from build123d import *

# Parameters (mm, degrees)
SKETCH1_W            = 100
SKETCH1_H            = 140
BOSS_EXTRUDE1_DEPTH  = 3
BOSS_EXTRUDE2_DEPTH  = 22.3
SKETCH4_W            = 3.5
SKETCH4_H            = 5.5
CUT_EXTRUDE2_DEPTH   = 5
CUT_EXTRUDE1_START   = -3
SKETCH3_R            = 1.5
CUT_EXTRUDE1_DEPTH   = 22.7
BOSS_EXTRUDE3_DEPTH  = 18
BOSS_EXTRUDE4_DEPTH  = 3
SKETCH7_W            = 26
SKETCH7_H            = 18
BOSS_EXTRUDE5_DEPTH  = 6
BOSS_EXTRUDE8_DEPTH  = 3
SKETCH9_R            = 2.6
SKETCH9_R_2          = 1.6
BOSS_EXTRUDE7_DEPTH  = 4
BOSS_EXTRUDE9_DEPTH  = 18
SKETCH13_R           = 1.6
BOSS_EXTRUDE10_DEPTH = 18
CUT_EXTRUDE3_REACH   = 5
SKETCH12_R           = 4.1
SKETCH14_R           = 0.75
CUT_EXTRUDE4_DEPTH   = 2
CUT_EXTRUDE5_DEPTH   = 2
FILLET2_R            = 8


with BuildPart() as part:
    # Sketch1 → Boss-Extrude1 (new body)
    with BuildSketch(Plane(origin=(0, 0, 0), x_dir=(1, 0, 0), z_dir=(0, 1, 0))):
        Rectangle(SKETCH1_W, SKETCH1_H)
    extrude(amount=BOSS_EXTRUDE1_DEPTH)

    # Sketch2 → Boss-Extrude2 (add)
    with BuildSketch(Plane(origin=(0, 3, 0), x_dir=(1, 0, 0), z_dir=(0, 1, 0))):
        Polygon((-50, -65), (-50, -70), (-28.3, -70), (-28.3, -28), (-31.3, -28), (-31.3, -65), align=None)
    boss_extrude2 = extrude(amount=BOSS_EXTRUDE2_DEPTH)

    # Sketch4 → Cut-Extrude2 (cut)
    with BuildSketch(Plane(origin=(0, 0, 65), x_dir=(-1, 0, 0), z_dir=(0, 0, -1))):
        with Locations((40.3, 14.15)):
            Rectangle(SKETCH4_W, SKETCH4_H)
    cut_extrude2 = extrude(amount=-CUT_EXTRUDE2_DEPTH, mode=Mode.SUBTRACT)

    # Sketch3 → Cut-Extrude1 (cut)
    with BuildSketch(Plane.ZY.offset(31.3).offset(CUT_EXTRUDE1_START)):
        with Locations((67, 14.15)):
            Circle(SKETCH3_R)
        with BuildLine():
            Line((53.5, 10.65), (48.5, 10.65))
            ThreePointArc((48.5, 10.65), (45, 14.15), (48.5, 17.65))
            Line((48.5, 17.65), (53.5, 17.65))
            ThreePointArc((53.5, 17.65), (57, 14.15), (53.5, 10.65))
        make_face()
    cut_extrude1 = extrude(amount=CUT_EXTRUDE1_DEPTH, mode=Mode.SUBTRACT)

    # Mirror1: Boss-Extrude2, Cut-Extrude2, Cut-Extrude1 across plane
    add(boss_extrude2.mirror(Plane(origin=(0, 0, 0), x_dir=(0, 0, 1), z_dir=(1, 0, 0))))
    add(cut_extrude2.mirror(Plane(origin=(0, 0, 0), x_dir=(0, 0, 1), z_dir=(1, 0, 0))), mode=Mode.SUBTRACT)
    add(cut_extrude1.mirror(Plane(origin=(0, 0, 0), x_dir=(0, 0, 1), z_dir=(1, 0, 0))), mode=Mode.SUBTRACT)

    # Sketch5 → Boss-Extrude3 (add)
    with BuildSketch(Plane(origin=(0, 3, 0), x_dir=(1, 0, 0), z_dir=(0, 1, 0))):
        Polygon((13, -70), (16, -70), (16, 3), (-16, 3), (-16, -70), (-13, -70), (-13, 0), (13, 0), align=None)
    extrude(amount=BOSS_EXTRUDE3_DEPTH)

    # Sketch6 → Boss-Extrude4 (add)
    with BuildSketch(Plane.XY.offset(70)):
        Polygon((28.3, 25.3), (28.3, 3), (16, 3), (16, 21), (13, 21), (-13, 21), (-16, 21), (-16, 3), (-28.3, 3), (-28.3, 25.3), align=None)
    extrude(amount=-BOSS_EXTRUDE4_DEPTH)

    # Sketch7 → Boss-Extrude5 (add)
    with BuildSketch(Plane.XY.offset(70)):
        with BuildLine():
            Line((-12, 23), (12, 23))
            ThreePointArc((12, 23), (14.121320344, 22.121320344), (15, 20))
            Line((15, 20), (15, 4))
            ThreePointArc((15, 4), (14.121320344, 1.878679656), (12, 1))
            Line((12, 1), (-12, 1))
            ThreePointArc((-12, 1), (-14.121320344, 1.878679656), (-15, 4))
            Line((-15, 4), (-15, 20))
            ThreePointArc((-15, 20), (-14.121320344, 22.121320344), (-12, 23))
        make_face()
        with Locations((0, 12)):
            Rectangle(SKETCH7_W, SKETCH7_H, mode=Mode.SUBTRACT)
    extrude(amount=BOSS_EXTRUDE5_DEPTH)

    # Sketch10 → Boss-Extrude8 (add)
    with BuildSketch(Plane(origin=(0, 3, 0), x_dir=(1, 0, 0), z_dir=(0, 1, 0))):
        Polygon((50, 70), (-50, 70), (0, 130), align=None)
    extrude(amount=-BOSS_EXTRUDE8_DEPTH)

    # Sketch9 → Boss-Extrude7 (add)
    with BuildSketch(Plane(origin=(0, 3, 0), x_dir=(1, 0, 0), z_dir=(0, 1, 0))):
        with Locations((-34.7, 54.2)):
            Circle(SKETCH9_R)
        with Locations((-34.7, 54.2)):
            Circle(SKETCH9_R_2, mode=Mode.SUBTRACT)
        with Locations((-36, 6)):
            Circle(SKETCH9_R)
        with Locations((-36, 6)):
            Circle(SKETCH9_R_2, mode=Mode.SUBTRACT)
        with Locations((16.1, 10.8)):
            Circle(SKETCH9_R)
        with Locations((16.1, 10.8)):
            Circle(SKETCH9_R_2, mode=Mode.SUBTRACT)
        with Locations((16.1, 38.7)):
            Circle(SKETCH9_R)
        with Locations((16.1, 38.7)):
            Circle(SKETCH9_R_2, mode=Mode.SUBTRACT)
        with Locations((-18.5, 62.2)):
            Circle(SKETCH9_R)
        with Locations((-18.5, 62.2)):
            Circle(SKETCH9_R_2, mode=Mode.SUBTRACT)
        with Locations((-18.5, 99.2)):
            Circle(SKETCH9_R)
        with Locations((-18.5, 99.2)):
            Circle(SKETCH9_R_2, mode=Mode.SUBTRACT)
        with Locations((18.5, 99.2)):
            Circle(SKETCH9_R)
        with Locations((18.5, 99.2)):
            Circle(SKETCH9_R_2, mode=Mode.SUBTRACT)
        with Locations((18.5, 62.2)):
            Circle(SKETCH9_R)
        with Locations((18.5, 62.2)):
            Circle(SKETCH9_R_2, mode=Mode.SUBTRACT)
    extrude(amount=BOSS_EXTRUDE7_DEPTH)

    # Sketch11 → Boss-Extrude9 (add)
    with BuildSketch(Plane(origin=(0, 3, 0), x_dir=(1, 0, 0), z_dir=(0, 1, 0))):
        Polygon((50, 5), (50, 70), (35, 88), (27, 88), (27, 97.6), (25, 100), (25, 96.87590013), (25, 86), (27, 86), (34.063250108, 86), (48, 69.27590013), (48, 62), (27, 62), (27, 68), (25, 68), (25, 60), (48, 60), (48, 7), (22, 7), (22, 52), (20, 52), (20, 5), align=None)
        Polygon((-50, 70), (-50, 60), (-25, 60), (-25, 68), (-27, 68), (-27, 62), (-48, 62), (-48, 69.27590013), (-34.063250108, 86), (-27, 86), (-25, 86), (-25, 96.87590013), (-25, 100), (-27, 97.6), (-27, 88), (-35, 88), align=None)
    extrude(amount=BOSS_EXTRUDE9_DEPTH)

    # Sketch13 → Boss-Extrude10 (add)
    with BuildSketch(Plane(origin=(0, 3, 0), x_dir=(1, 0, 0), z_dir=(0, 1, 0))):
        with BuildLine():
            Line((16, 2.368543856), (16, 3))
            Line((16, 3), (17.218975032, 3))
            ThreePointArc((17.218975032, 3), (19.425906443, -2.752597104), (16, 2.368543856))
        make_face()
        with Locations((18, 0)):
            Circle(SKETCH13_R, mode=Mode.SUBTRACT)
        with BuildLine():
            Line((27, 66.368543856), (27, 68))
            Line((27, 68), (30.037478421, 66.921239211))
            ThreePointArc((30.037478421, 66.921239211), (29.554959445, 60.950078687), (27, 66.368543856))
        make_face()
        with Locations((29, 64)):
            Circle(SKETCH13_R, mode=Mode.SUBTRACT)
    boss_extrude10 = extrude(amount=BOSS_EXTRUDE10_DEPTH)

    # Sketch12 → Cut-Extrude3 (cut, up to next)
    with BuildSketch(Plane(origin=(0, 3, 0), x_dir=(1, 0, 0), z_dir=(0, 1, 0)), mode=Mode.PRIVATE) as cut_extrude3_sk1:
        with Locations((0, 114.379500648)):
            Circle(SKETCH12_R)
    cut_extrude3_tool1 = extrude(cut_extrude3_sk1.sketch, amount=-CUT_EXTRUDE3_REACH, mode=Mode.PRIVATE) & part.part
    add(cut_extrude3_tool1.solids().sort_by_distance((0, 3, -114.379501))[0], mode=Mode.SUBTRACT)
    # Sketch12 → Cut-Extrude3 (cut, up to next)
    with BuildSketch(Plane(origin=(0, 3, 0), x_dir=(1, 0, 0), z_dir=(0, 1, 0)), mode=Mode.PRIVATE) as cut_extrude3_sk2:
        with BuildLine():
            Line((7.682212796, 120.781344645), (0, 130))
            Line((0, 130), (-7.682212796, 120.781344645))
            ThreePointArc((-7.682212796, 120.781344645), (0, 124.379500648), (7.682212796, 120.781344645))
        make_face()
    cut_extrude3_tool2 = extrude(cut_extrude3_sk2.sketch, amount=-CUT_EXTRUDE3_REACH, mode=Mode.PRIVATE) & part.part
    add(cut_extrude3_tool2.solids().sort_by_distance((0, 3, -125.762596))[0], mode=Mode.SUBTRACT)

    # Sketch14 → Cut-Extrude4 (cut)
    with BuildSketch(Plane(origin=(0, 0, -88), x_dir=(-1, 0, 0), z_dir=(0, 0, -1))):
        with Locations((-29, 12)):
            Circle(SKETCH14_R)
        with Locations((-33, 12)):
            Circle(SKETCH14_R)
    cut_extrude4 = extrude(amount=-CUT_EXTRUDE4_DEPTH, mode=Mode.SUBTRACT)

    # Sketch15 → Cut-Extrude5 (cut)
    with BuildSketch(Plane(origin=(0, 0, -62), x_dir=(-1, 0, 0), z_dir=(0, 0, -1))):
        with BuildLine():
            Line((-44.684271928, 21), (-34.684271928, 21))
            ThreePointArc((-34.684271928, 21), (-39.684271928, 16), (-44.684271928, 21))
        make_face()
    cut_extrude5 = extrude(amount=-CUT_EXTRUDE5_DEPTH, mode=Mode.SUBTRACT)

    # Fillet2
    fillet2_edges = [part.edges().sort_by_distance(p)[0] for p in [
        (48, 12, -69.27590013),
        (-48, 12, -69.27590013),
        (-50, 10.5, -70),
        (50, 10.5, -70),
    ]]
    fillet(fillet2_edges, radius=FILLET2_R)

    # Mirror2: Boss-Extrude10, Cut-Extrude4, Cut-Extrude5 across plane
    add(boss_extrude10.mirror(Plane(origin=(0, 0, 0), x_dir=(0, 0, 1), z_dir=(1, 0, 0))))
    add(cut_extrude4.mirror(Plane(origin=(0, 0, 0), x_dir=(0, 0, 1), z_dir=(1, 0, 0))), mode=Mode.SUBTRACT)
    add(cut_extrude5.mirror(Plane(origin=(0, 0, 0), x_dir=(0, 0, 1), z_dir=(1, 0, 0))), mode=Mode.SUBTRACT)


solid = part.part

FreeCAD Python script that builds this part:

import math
import FreeCAD as App
import Part
import Sketcher
from FreeCAD import Vector


def edges_at(feature, points):
    """Names of the edges that pass closest to the given points."""
    edges = feature.Shape.Edges
    near = lambda p: min(range(len(edges)), key=lambda i: edges[i].distToShape(Part.Vertex(*p))[0])
    return sorted({f"Edge{near(p) + 1}" for p in points})


def add_polygon(sketch, points):
    """Adds a closed chain of lines whose ends are joined by coincident constraints."""
    first, n = sketch.GeometryCount, len(points)
    for a, b in zip(points, points[1:] + points[:1]):
        sketch.addGeometry(Part.LineSegment(App.Vector(*a, 0), App.Vector(*b, 0)), False)
    for i in range(n):
        sketch.addConstraint(Sketcher.Constraint("Coincident", first + i, 2, first + (i + 1) % n, 1))

doc = App.newDocument("Part")
body = doc.addObject("PartDesign::Body", "Body")

# Sketch on XZ plane
sketch1 = doc.addObject("Sketcher::SketchObject", "Sketch")
body.addObject(sketch1)
sketch1.AttachmentSupport = (doc.XZ_Plane, [""])
sketch1.MapMode = "FlatFace"
add_polygon(sketch1, [(-50, -70), (-50, 70), (50, 70), (50, -70)])  # lines 0-3
sketch1.addConstraint(Sketcher.Constraint("Vertical", 0))
sketch1.addConstraint(Sketcher.Constraint("Horizontal", 1))
sketch1.addConstraint(Sketcher.Constraint("Vertical", 2))
sketch1.addConstraint(Sketcher.Constraint("Horizontal", 3))
sketch1.addConstraint(Sketcher.Constraint("Symmetric", 0, 2, 2, 2, -1, 1))
sketch1.addConstraint(Sketcher.Constraint("DistanceX", 1, 1, 1, 2, 100.0))
sketch1.addConstraint(Sketcher.Constraint("DistanceY", 0, 1, 0, 2, 140.0))
pad1 = doc.addObject("PartDesign::Pad", "Pad")
body.addObject(pad1)
pad1.Profile = sketch1
pad1.Length = 3
pad1.Reversed = True

# Sketch on XZ plane
sketch2 = doc.addObject("Sketcher::SketchObject", "Sketch001")
body.addObject(sketch2)
sketch2.AttachmentSupport = (doc.XZ_Plane, [""])
sketch2.MapMode = "FlatFace"
sketch2.AttachmentOffset = App.Placement(Vector(0, 0, -3), App.Rotation())
add_polygon(sketch2, [(-50, 65), (-50, 70), (-28.3, 70), (-28.3, 28), (-31.3, 28), (-31.3, 65)])  # lines 0-5
sketch2.addConstraint(Sketcher.Constraint("Vertical", 0))
sketch2.addConstraint(Sketcher.Constraint("Horizontal", 1))
sketch2.addConstraint(Sketcher.Constraint("Vertical", 2))
sketch2.addConstraint(Sketcher.Constraint("Horizontal", 3))
sketch2.addConstraint(Sketcher.Constraint("Vertical", 4))
sketch2.addConstraint(Sketcher.Constraint("Horizontal", 5))
sketch2.addConstraint(Sketcher.Constraint("DistanceX", 3, 2, 3, 1, 3.0))
sketch2.addConstraint(Sketcher.Constraint("DistanceY", 0, 1, 0, 2, 5.0))
sketch2.addConstraint(Sketcher.Constraint("DistanceY", 2, 2, 2, 1, 42.0))
sketch2.addConstraint(Sketcher.Constraint("DistanceX", 1, 1, 1, 2, 21.7))
sketch2.addConstraint(Sketcher.Constraint("DistanceX", 0, 2, -1, 1, 50.0))
sketch2.addConstraint(Sketcher.Constraint("DistanceY", -1, 1, 0, 2, 70.0))
pad2 = doc.addObject("PartDesign::Pad", "Pad001")
body.addObject(pad2)
pad2.Profile = sketch2
pad2.Length = 22.3
pad2.Reversed = True

# Sketch on XY plane
sketch3 = doc.addObject("Sketcher::SketchObject", "Sketch002")
body.addObject(sketch3)
sketch3.AttachmentSupport = (doc.XY_Plane, [""])
sketch3.MapMode = "FlatFace"
sketch3.AttachmentOffset = App.Placement(Vector(0, 0, 65), App.Rotation())
add_polygon(sketch3, [(-38.5, 16.9), (-38.5, 11.4), (-42, 11.4), (-42, 16.9)])  # lines 0-3
sketch3.addConstraint(Sketcher.Constraint("Vertical", 0))
sketch3.addConstraint(Sketcher.Constraint("Horizontal", 1))
sketch3.addConstraint(Sketcher.Constraint("Vertical", 2))
sketch3.addConstraint(Sketcher.Constraint("Horizontal", 3))
sketch3.addConstraint(Sketcher.Constraint("DistanceX", 1, 2, 1, 1, 3.5))
sketch3.addConstraint(Sketcher.Constraint("DistanceY", 0, 2, 0, 1, 5.5))
sketch3.addConstraint(Sketcher.Constraint("DistanceY", -1, 1, 0, 2, 11.4))
sketch3.addConstraint(Sketcher.Constraint("DistanceX", 0, 2, -1, 1, 38.55))
pocket1 = doc.addObject("PartDesign::Pocket", "Pocket")
body.addObject(pocket1)
pocket1.Profile = sketch3
pocket1.Length = 5
pocket1.Reversed = True

# Sketch on YZ plane
sketch4 = doc.addObject("Sketcher::SketchObject", "Sketch003")
body.addObject(sketch4)
sketch4.AttachmentSupport = (doc.YZ_Plane, [""])
sketch4.MapMode = "FlatFace"
sketch4.AttachmentOffset = App.Placement(Vector(0, 0, -28.3), App.Rotation())
sketch4.addGeometry(Part.Circle(Vector(14.2, 67, 0), Vector(0, 0, 1), 1.5), False)
sketch4.addGeometry(Part.LineSegment(Vector(10.7, 48.5, 0), Vector(10.7, 53.5, 0)), False)
sketch4.addGeometry(Part.ArcOfCircle(Part.Circle(Vector(14.2, 53.5, 0), Vector(0, 0, 1), 3.5), math.radians(0), math.radians(180)), False)
sketch4.addGeometry(Part.LineSegment(Vector(17.6, 53.5, 0), Vector(17.6, 48.5, 0)), False)
sketch4.addGeometry(Part.ArcOfCircle(Part.Circle(Vector(14.2, 48.5, 0), Vector(0, 0, 1), 3.5), math.radians(180), math.radians(360)), False)
sketch4.addConstraint(Sketcher.Constraint("Tangent", 1, 2, 2, 2))
sketch4.addConstraint(Sketcher.Constraint("Tangent", 2, 1, 3, 1))
sketch4.addConstraint(Sketcher.Constraint("Tangent", 3, 2, 4, 2))
sketch4.addConstraint(Sketcher.Constraint("Tangent", 4, 1, 1, 1))
sketch4.addConstraint(Sketcher.Constraint("Vertical", 1))
sketch4.addConstraint(Sketcher.Constraint("Vertical", 3))
sketch4.addConstraint(Sketcher.Constraint("Vertical", 0, 3, 2, 3))
sketch4.addConstraint(Sketcher.Constraint("Diameter", 0, 3.0))
sketch4.addConstraint(Sketcher.Constraint("Radius", 2, 3.5))
sketch4.addConstraint(Sketcher.Constraint("DistanceY", 1, 1, 1, 2, 5.0))
sketch4.addConstraint(Sketcher.Constraint("DistanceY", -1, 1, 0, 3, 67.0))
sketch4.addConstraint(Sketcher.Constraint("DistanceY", -1, 1, 2, 3, 53.5))
sketch4.addConstraint(Sketcher.Constraint("DistanceX", -1, 1, 0, 3, 14.15))
pocket2 = doc.addObject("PartDesign::Pocket", "Pocket001")
body.addObject(pocket2)
pocket2.Profile = sketch4
pocket2.Length = 22.7
doc.recompute()

mirrored = doc.addObject("PartDesign::Mirrored", "Mirrored")
body.addObject(mirrored)
mirrored.Originals = [pad2, pocket1, pocket2]
mirrored.MirrorPlane = (doc.YZ_Plane, [""])
body.Tip = mirrored

# Sketch on XZ plane
sketch5 = doc.addObject("Sketcher::SketchObject", "Sketch004")
body.addObject(sketch5)
sketch5.AttachmentSupport = (doc.XZ_Plane, [""])
sketch5.MapMode = "FlatFace"
sketch5.AttachmentOffset = App.Placement(Vector(0, 0, -3), App.Rotation())
add_polygon(sketch5, [(13, 70), (16, 70), (16, -3), (-16, -3), (-16, 70), (-13, 70), (-13, 0), (13, 0)])  # lines 0-7
sketch5.addConstraint(Sketcher.Constraint("Horizontal", 0))
sketch5.addConstraint(Sketcher.Constraint("Vertical", 1))
sketch5.addConstraint(Sketcher.Constraint("Horizontal", 2))
sketch5.addConstraint(Sketcher.Constraint("Vertical", 3))
sketch5.addConstraint(Sketcher.Constraint("Horizontal", 4))
sketch5.addConstraint(Sketcher.Constraint("Vertical", 5))
sketch5.addConstraint(Sketcher.Constraint("Horizontal", 6))
sketch5.addConstraint(Sketcher.Constraint("Vertical", 7))
sketch5.addConstraint(Sketcher.Constraint("Symmetric", 5, 2, 6, 2, -1, 1))
sketch5.addConstraint(Sketcher.Constraint("Symmetric", 0, 2, 3, 2, -2))
sketch5.addConstraint(Sketcher.Constraint("DistanceX", 0, 1, 0, 2, 3.0))
sketch5.addConstraint(Sketcher.Constraint("DistanceX", 2, 2, 2, 1, 32.0))
sketch5.addConstraint(Sketcher.Constraint("DistanceY", 1, 2, 1, 1, 73.0))
sketch5.addConstraint(Sketcher.Constraint("DistanceY", 5, 2, 5, 1, 70.0))
pad3 = doc.addObject("PartDesign::Pad", "Pad002")
body.addObject(pad3)
pad3.Profile = sketch5
pad3.Length = 18
pad3.Reversed = True

# Sketch on XY plane
sketch6 = doc.addObject("Sketcher::SketchObject", "Sketch005")
body.addObject(sketch6)
sketch6.AttachmentSupport = (doc.XY_Plane, [""])
sketch6.MapMode = "FlatFace"
sketch6.AttachmentOffset = App.Placement(Vector(0, 0, 70), App.Rotation())
add_polygon(sketch6, [(28, 3), (28, 25), (-28, 25), (-28, 3), (-16, 3), (-16, 21), (16, 21), (16, 3)])  # lines 0-7
sketch6.addConstraint(Sketcher.Constraint("Vertical", 0))
sketch6.addConstraint(Sketcher.Constraint("Horizontal", 1))
sketch6.addConstraint(Sketcher.Constraint("Vertical", 2))
sketch6.addConstraint(Sketcher.Constraint("Horizontal", 3))
sketch6.addConstraint(Sketcher.Constraint("Vertical", 4))
sketch6.addConstraint(Sketcher.Constraint("Horizontal", 5))
sketch6.addConstraint(Sketcher.Constraint("Vertical", 6))
sketch6.addConstraint(Sketcher.Constraint("Horizontal", 7))
sketch6.addConstraint(Sketcher.Constraint("Symmetric", 3, 2, 6, 2, -2))
sketch6.addConstraint(Sketcher.Constraint("Equal", 3, 7))
sketch6.addConstraint(Sketcher.Constraint("DistanceX", 5, 1, 5, 2, 32.0))
sketch6.addConstraint(Sketcher.Constraint("DistanceY", 4, 1, 4, 2, 18.0))
sketch6.addConstraint(Sketcher.Constraint("DistanceX", 1, 2, 1, 1, 56.6))
sketch6.addConstraint(Sketcher.Constraint("DistanceY", 0, 1, 0, 2, 22.3))
sketch6.addConstraint(Sketcher.Constraint("DistanceY", -1, 1, 2, 2, 3.0))
pad4 = doc.addObject("PartDesign::Pad", "Pad003")
body.addObject(pad4)
pad4.Profile = sketch6
pad4.Length = 3
pad4.Reversed = True

# Sketch on XY plane
sketch7 = doc.addObject("Sketcher::SketchObject", "Sketch006")
body.addObject(sketch7)
sketch7.AttachmentSupport = (doc.XY_Plane, [""])
sketch7.MapMode = "FlatFace"
sketch7.AttachmentOffset = App.Placement(Vector(0, 0, 70), App.Rotation())
sketch7.addGeometry(Part.LineSegment(Vector(12, 23, 0), Vector(-12, 23, 0)), False)  # 0
sketch7.addGeometry(Part.ArcOfCircle(Part.Circle(Vector(-12, 20, 0), Vector(0, 0, 1), 3), math.radians(90), math.radians(180)), False)  # 1
sketch7.addGeometry(Part.LineSegment(Vector(-15, 20, 0), Vector(-15, 4, 0)), False)  # 2
sketch7.addGeometry(Part.ArcOfCircle(Part.Circle(Vector(-12, 4, 0), Vector(0, 0, 1), 3), math.radians(180), math.radians(270)), False)  # 3
sketch7.addGeometry(Part.LineSegment(Vector(-12, 1, 0), Vector(12, 1, 0)), False)  # 4
sketch7.addGeometry(Part.ArcOfCircle(Part.Circle(Vector(12, 4, 0), Vector(0, 0, 1), 3), math.radians(-90), math.radians(0)), False)  # 5
sketch7.addGeometry(Part.LineSegment(Vector(15, 4, 0), Vector(15, 20, 0)), False)  # 6
sketch7.addGeometry(Part.ArcOfCircle(Part.Circle(Vector(12, 20, 0), Vector(0, 0, 1), 3), math.radians(0), math.radians(90)), False)  # 7
add_polygon(sketch7, [(-13, 3), (-13, 21), (13, 21), (13, 3)])  # lines 8-11
sketch7.addConstraint(Sketcher.Constraint("Tangent", 0, 2, 1, 1))
sketch7.addConstraint(Sketcher.Constraint("Tangent", 1, 2, 2, 1))
sketch7.addConstraint(Sketcher.Constraint("Tangent", 2, 2, 3, 1))
sketch7.addConstraint(Sketcher.Constraint("Tangent", 3, 2, 4, 1))
sketch7.addConstraint(Sketcher.Constraint("Tangent", 4, 2, 5, 1))
sketch7.addConstraint(Sketcher.Constraint("Tangent", 5, 2, 6, 1))
sketch7.addConstraint(Sketcher.Constraint("Tangent", 6, 2, 7, 1))
sketch7.addConstraint(Sketcher.Constraint("Tangent", 7, 2, 0, 1))
sketch7.addConstraint(Sketcher.Constraint("Horizontal", 0))
sketch7.addConstraint(Sketcher.Constraint("Vertical", 2))
sketch7.addConstraint(Sketcher.Constraint("Horizontal", 4))
sketch7.addConstraint(Sketcher.Constraint("Vertical", 6))
sketch7.addConstraint(Sketcher.Constraint("Vertical", 8))
sketch7.addConstraint(Sketcher.Constraint("Horizontal", 9))
sketch7.addConstraint(Sketcher.Constraint("Vertical", 10))
sketch7.addConstraint(Sketcher.Constraint("Horizontal", 11))
sketch7.addConstraint(Sketcher.Constraint("Equal", 1, 3))
sketch7.addConstraint(Sketcher.Constraint("Equal", 3, 5))
sketch7.addConstraint(Sketcher.Constraint("Equal", 5, 7))
sketch7.addConstraint(Sketcher.Constraint("Radius", 1, 3.0))
sketch7.addConstraint(Sketcher.Constraint("DistanceX", 0, 2, 0, 1, 24.0))
sketch7.addConstraint(Sketcher.Constraint("DistanceX", 9, 1, 9, 2, 26.0))
sketch7.addConstraint(Sketcher.Constraint("DistanceY", 2, 2, 2, 1, 16.0))
sketch7.addConstraint(Sketcher.Constraint("DistanceY", 8, 1, 8, 2, 18.0))
sketch7.addConstraint(Sketcher.Constraint("DistanceX", 1, 3, -1, 1, 12.0))
sketch7.addConstraint(Sketcher.Constraint("DistanceY", -1, 1, 1, 3, 20.0))
sketch7.addConstraint(Sketcher.Constraint("DistanceX", 8, 2, -1, 1, 13.0))
sketch7.addConstraint(Sketcher.Constraint("DistanceY", -1, 1, 8, 2, 21.0))
pad5 = doc.addObject("PartDesign::Pad", "Pad004")
body.addObject(pad5)
pad5.Profile = sketch7
pad5.Length = 6

# Sketch on XZ plane
sketch8 = doc.addObject("Sketcher::SketchObject", "Sketch007")
body.addObject(sketch8)
sketch8.AttachmentSupport = (doc.XZ_Plane, [""])
sketch8.MapMode = "FlatFace"
sketch8.AttachmentOffset = App.Placement(Vector(0, 0, -3), App.Rotation())
add_polygon(sketch8, [(-50, -70), (50, -70), (0, -130)])  # lines 0-2
sketch8.addConstraint(Sketcher.Constraint("Horizontal", 0))
sketch8.addConstraint(Sketcher.Constraint("PointOnObject", 1, 2, -2))
sketch8.addConstraint(Sketcher.Constraint("Equal", 1, 2))
sketch8.addConstraint(Sketcher.Constraint("DistanceX", 0, 1, 0, 2, 100.0))
sketch8.addConstraint(Sketcher.Constraint("DistanceY", 0, 2, -1, 1, 70.0))
sketch8.addConstraint(Sketcher.Constraint("DistanceY", 1, 2, -1, 1, 130.0))
pad6 = doc.addObject("PartDesign::Pad", "Pad005")
body.addObject(pad6)
pad6.Profile = sketch8
pad6.Length = 3

# Sketch on XZ plane
sketch9 = doc.addObject("Sketcher::SketchObject", "Sketch008")
body.addObject(sketch9)
sketch9.AttachmentSupport = (doc.XZ_Plane, [""])
sketch9.MapMode = "FlatFace"
sketch9.AttachmentOffset = App.Placement(Vector(0, 0, -3), App.Rotation())
sketch9.addGeometry(Part.Circle(Vector(-34.7, -54.2, 0), Vector(0, 0, 1), 2.6), False)
sketch9.addGeometry(Part.Circle(Vector(-34.7, -54.2, 0), Vector(0, 0, 1), 1.6), False)
sketch9.addGeometry(Part.Circle(Vector(-36, -6, 0), Vector(0, 0, 1), 2.6), False)
sketch9.addGeometry(Part.Circle(Vector(-36, -6, 0), Vector(0, 0, 1), 1.6), False)
sketch9.addGeometry(Part.Circle(Vector(16.1, -10.8, 0), Vector(0, 0, 1), 2.6), False)
sketch9.addGeometry(Part.Circle(Vector(16.1, -10.8, 0), Vector(0, 0, 1), 1.6), False)
sketch9.addGeometry(Part.Circle(Vector(16.1, -38.7, 0), Vector(0, 0, 1), 2.6), False)
sketch9.addGeometry(Part.Circle(Vector(16.1, -38.7, 0), Vector(0, 0, 1), 1.6), False)
sketch9.addGeometry(Part.Circle(Vector(-18.5, -62.2, 0), Vector(0, 0, 1), 2.6), False)
sketch9.addGeometry(Part.Circle(Vector(-18.5, -62.2, 0), Vector(0, 0, 1), 1.6), False)
sketch9.addGeometry(Part.Circle(Vector(-18.5, -99.2, 0), Vector(0, 0, 1), 2.6), False)
sketch9.addGeometry(Part.Circle(Vector(-18.5, -99.2, 0), Vector(0, 0, 1), 1.6), False)
sketch9.addGeometry(Part.Circle(Vector(18.5, -99.2, 0), Vector(0, 0, 1), 2.6), False)
sketch9.addGeometry(Part.Circle(Vector(18.5, -99.2, 0), Vector(0, 0, 1), 1.6), False)
sketch9.addGeometry(Part.Circle(Vector(18.5, -62.2, 0), Vector(0, 0, 1), 2.6), False)
sketch9.addGeometry(Part.Circle(Vector(18.5, -62.2, 0), Vector(0, 0, 1), 1.6), False)
sketch9.addConstraint(Sketcher.Constraint("Coincident", 1, 3, 0, 3))
sketch9.addConstraint(Sketcher.Constraint("Coincident", 3, 3, 2, 3))
sketch9.addConstraint(Sketcher.Constraint("Coincident", 5, 3, 4, 3))
sketch9.addConstraint(Sketcher.Constraint("Coincident", 7, 3, 6, 3))
sketch9.addConstraint(Sketcher.Constraint("Coincident", 9, 3, 8, 3))
sketch9.addConstraint(Sketcher.Constraint("Coincident", 11, 3, 10, 3))
sketch9.addConstraint(Sketcher.Constraint("Coincident", 13, 3, 12, 3))
sketch9.addConstraint(Sketcher.Constraint("Coincident", 15, 3, 14, 3))
sketch9.addConstraint(Sketcher.Constraint("Equal", 0, 2))
sketch9.addConstraint(Sketcher.Constraint("Equal", 1, 3))
sketch9.addConstraint(Sketcher.Constraint("Equal", 2, 4))
sketch9.addConstraint(Sketcher.Constraint("Equal", 3, 5))
sketch9.addConstraint(Sketcher.Constraint("Equal", 4, 6))
sketch9.addConstraint(Sketcher.Constraint("Equal", 5, 7))
sketch9.addConstraint(Sketcher.Constraint("Equal", 6, 8))
sketch9.addConstraint(Sketcher.Constraint("Equal", 7, 9))
sketch9.addConstraint(Sketcher.Constraint("Equal", 8, 10))
sketch9.addConstraint(Sketcher.Constraint("Equal", 9, 11))
sketch9.addConstraint(Sketcher.Constraint("Equal", 10, 12))
sketch9.addConstraint(Sketcher.Constraint("Equal", 11, 13))
sketch9.addConstraint(Sketcher.Constraint("Equal", 12, 14))
sketch9.addConstraint(Sketcher.Constraint("Equal", 13, 15))
sketch9.addConstraint(Sketcher.Constraint("Symmetric", 10, 3, 12, 3, -2))
sketch9.addConstraint(Sketcher.Constraint("Symmetric", 8, 3, 14, 3, -2))
sketch9.addConstraint(Sketcher.Constraint("Vertical", 5, 3, 6, 3))
sketch9.addConstraint(Sketcher.Constraint("Vertical", 9, 3, 10, 3))
sketch9.addConstraint(Sketcher.Constraint("Diameter", 0, 5.2))
sketch9.addConstraint(Sketcher.Constraint("Diameter", 1, 3.2))
sketch9.addConstraint(Sketcher.Constraint("DistanceX", 2, 3, -1, 1, 36.0))
sketch9.addConstraint(Sketcher.Constraint("DistanceY", 2, 3, -1, 1, 6.0))
sketch9.addConstraint(Sketcher.Constraint("DistanceY", 8, 3, 0, 3, 8.0))
sketch9.addConstraint(Sketcher.Constraint("DistanceY", 10, 3, 8, 3, 37.0))
sketch9.addConstraint(Sketcher.Constraint("DistanceX", 10, 3, 12, 3, 37.0))
sketch9.addConstraint(Sketcher.Constraint("DistanceX", 0, 3, -1, 1, 34.7))
sketch9.addConstraint(Sketcher.Constraint("DistanceY", 0, 3, -1, 1, 54.2))
sketch9.addConstraint(Sketcher.Constraint("DistanceX", -1, 1, 4, 3, 16.1))
sketch9.addConstraint(Sketcher.Constraint("DistanceY", 4, 3, -1, 1, 10.8))
sketch9.addConstraint(Sketcher.Constraint("DistanceY", 6, 3, -1, 1, 38.7))
pad7 = doc.addObject("PartDesign::Pad", "Pad006")
body.addObject(pad7)
pad7.Profile = sketch9
pad7.Length = 4
pad7.Reversed = True

# Sketch on XZ plane
sketch10 = doc.addObject("Sketcher::SketchObject", "Sketch009")
body.addObject(sketch10)
sketch10.AttachmentSupport = (doc.XZ_Plane, [""])
sketch10.MapMode = "FlatFace"
sketch10.AttachmentOffset = App.Placement(Vector(0, 0, -3), App.Rotation())
add_polygon(sketch10, [(50, -5), (50, -70), (35, -88), (27, -88), (27, -97.6), (25, -100), (25, -86), (34.1, -86), (48, -69.3), (48, -62), (27, -62), (27, -68), (25, -68), (25, -60), (48, -60), (48, -7), (22, -7), (22, -52), (20, -52), (20, -5)])  # lines 0-19
add_polygon(sketch10, [(-50, -70), (-50, -60), (-25, -60), (-25, -68), (-27, -68), (-27, -62), (-48, -62), (-48, -69.3), (-34.1, -86), (-25, -86), (-25, -100), (-27, -97.6), (-27, -88), (-35, -88)])  # lines 20-33
sketch10.addConstraint(Sketcher.Constraint("Vertical", 0))
sketch10.addConstraint(Sketcher.Constraint("Horizontal", 2))
sketch10.addConstraint(Sketcher.Constraint("Vertical", 3))
sketch10.addConstraint(Sketcher.Constraint("Vertical", 5))
sketch10.addConstraint(Sketcher.Constraint("Horizontal", 6))
sketch10.addConstraint(Sketcher.Constraint("Vertical", 8))
sketch10.addConstraint(Sketcher.Constraint("Horizontal", 9))
sketch10.addConstraint(Sketcher.Constraint("Vertical", 10))
sketch10.addConstraint(Sketcher.Constraint("Horizontal", 11))
sketch10.addConstraint(Sketcher.Constraint("Vertical", 12))
sketch10.addConstraint(Sketcher.Constraint("Horizontal", 13))
sketch10.addConstraint(Sketcher.Constraint("Vertical", 14))
sketch10.addConstraint(Sketcher.Constraint("Horizontal", 15))
sketch10.addConstraint(Sketcher.Constraint("Vertical", 16))
sketch10.addConstraint(Sketcher.Constraint("Horizontal", 17))
sketch10.addConstraint(Sketcher.Constraint("Vertical", 18))
sketch10.addConstraint(Sketcher.Constraint("Horizontal", 19))
sketch10.addConstraint(Sketcher.Constraint("Vertical", 20))
sketch10.addConstraint(Sketcher.Constraint("Horizontal", 21))
sketch10.addConstraint(Sketcher.Constraint("Vertical", 22))
sketch10.addConstraint(Sketcher.Constraint("Horizontal", 23))
sketch10.addConstraint(Sketcher.Constraint("Vertical", 24))
sketch10.addConstraint(Sketcher.Constraint("Horizontal", 25))
sketch10.addConstraint(Sketcher.Constraint("Vertical", 26))
sketch10.addConstraint(Sketcher.Constraint("Horizontal", 28))
sketch10.addConstraint(Sketcher.Constraint("Vertical", 29))
sketch10.addConstraint(Sketcher.Constraint("Vertical", 31))
sketch10.addConstraint(Sketcher.Constraint("Horizontal", 32))
sketch10.addConstraint(Sketcher.Constraint("Symmetric", 12, 2, 21, 2, -2))
sketch10.addConstraint(Sketcher.Constraint("Symmetric", 10, 2, 23, 2, -2))
sketch10.addConstraint(Sketcher.Constraint("Symmetric", 8, 2, 25, 2, -2))
sketch10.addConstraint(Sketcher.Constraint("Symmetric", 6, 2, 27, 2, -2))
sketch10.addConstraint(Sketcher.Constraint("Symmetric", 4, 2, 29, 2, -2))
sketch10.addConstraint(Sketcher.Constraint("Symmetric", 3, 2, 30, 2, -2))
sketch10.addConstraint(Sketcher.Constraint("Symmetric", 1, 2, 32, 2, -2))
sketch10.addConstraint(Sketcher.Constraint("Symmetric", 0, 2, 33, 2, -2))
sketch10.addConstraint(Sketcher.Constraint("Parallel", 1, 4))
sketch10.addConstraint(Sketcher.Constraint("Parallel", 4, 7))
sketch10.addConstraint(Sketcher.Constraint("Parallel", 27, 30))
sketch10.addConstraint(Sketcher.Constraint("Vertical", 3, 2, 9, 2))
sketch10.addConstraint(Sketcher.Constraint("Vertical", 5, 2, 11, 2))
sketch10.addConstraint(Sketcher.Constraint("Vertical", 8, 2, 13, 2))
sketch10.addConstraint(Sketcher.Constraint("Equal", 11, 17))
sketch10.addConstraint(Sketcher.Constraint("Equal", 32, 12))
sketch10.addConstraint(Sketcher.Constraint("DistanceX", 2, 2, 2, 1, 8.0))
sketch10.addConstraint(Sketcher.Constraint("DistanceX", 9, 2, 9, 1, 21.0))
sketch10.addConstraint(Sketcher.Constraint("DistanceX", 11, 2, 11, 1, 2.0))
sketch10.addConstraint(Sketcher.Constraint("DistanceX", 15, 2, 15, 1, 26.0))
sketch10.addConstraint(Sketcher.Constraint("DistanceX", 19, 1, 19, 2, 30.0))
sketch10.addConstraint(Sketcher.Constraint("DistanceY", 0, 2, 0, 1, 65.0))
sketch10.addConstraint(Sketcher.Constraint("DistanceY", 5, 1, 5, 2, 14.0))
sketch10.addConstraint(Sketcher.Constraint("DistanceY", 10, 2, 10, 1, 6.0))
sketch10.addConstraint(Sketcher.Constraint("DistanceY", 14, 1, 14, 2, 53.0))
sketch10.addConstraint(Sketcher.Constraint("DistanceY", 16, 2, 16, 1, 45.0))
sketch10.addConstraint(Sketcher.Constraint("DistanceY", 18, 1, 18, 2, 47.0))
sketch10.addConstraint(Sketcher.Constraint("DistanceY", 3, 2, 3, 1, 9.6))
sketch10.addConstraint(Sketcher.Constraint("DistanceX", -1, 1, 0, 2, 50.0))
sketch10.addConstraint(Sketcher.Constraint("DistanceY", 0, 2, -1, 1, 70.0))
sketch10.addConstraint(Sketcher.Constraint("DistanceY", 1, 2, -1, 1, 88.0))
sketch10.addConstraint(Sketcher.Constraint("DistanceY", 8, 1, 8, 2, 7.2759))
pad8 = doc.addObject("PartDesign::Pad", "Pad007")
body.addObject(pad8)
pad8.Profile = sketch10
pad8.Length = 18
pad8.Reversed = True

# Sketch on XZ plane
sketch11 = doc.addObject("Sketcher::SketchObject", "Sketch010")
body.addObject(sketch11)
sketch11.AttachmentSupport = (doc.XZ_Plane, [""])
sketch11.MapMode = "FlatFace"
sketch11.AttachmentOffset = App.Placement(Vector(0, 0, -3), App.Rotation())
sketch11.addGeometry(Part.LineSegment(Vector(16, -3, 0), Vector(16, -2.4, 0)), False)
sketch11.addGeometry(Part.ArcOfCircle(Part.Circle(Vector(18, 0, 0), Vector(0, 0, 1), 3.1), math.radians(-105), math.radians(230)), False)
sketch11.addGeometry(Part.LineSegment(Vector(17.2, -3, 0), Vector(16, -3, 0)), False)
sketch11.addGeometry(Part.Circle(Vector(18, 0, 0), Vector(0, 0, 1), 1.6), False)
sketch11.addGeometry(Part.LineSegment(Vector(27, -68, 0), Vector(27, -66.4, 0)), False)
sketch11.addGeometry(Part.ArcOfCircle(Part.Circle(Vector(29, -64, 0), Vector(0, 0, 1), 3.1), math.radians(-70), math.radians(230)), False)
sketch11.addGeometry(Part.LineSegment(Vector(30, -66.9, 0), Vector(27, -68, 0)), False)
sketch11.addGeometry(Part.Circle(Vector(29, -64, 0), Vector(0, 0, 1), 1.6), False)
sketch11.addConstraint(Sketcher.Constraint("Coincident", 0, 2, 1, 2))
sketch11.addConstraint(Sketcher.Constraint("Coincident", 1, 1, 2, 1))
sketch11.addConstraint(Sketcher.Constraint("Coincident", 2, 2, 0, 1))
sketch11.addConstraint(Sketcher.Constraint("Coincident", 4, 2, 5, 2))
sketch11.addConstraint(Sketcher.Constraint("Tangent", 5, 1, 6, 1))
sketch11.addConstraint(Sketcher.Constraint("Coincident", 6, 2, 4, 1))
sketch11.addConstraint(Sketcher.Constraint("Vertical", 0))
sketch11.addConstraint(Sketcher.Constraint("Horizontal", 2))
sketch11.addConstraint(Sketcher.Constraint("Vertical", 4))
sketch11.addConstraint(Sketcher.Constraint("Coincident", 3, 3, 1, 3))
sketch11.addConstraint(Sketcher.Constraint("Coincident", 7, 3, 5, 3))
sketch11.addConstraint(Sketcher.Constraint("Equal", 1, 5))
sketch11.addConstraint(Sketcher.Constraint("Equal", 3, 7))
sketch11.addConstraint(Sketcher.Constraint("PointOnObject", 1, 3, -1))
sketch11.addConstraint(Sketcher.Constraint("Diameter", 3, 3.2))
sketch11.addConstraint(Sketcher.Constraint("Radius", 1, 3.1))
sketch11.addConstraint(Sketcher.Constraint("DistanceX", -1, 1, 1, 3, 18.0))
sketch11.addConstraint(Sketcher.Constraint("DistanceX", -1, 1, 5, 3, 29.0))
sketch11.addConstraint(Sketcher.Constraint("DistanceY", 5, 3, -1, 1, 64.0))
sketch11.addConstraint(Sketcher.Constraint("DistanceX", -1, 1, 0, 2, 16.0))
sketch11.addConstraint(Sketcher.Constraint("DistanceY", 1, 1, -1, 1, 3.0))
sketch11.addConstraint(Sketcher.Constraint("DistanceX", -1, 1, 4, 2, 27.0))
sketch11.addConstraint(Sketcher.Constraint("DistanceY", 6, 2, -1, 1, 68.0))
pad9 = doc.addObject("PartDesign::Pad", "Pad008")
body.addObject(pad9)
pad9.Profile = sketch11
pad9.Length = 18
pad9.Reversed = True

# Sketch on XZ plane
sketch12 = doc.addObject("Sketcher::SketchObject", "Sketch011")
body.addObject(sketch12)
sketch12.AttachmentSupport = (doc.XZ_Plane, [""])
sketch12.MapMode = "FlatFace"
sketch12.AttachmentOffset = App.Placement(Vector(0, 0, -3), App.Rotation())
sketch12.addGeometry(Part.Circle(Vector(0, -114.4, 0), Vector(0, 0, 1), 4.1), False)
sketch12.addConstraint(Sketcher.Constraint("PointOnObject", 0, 3, -2))
sketch12.addConstraint(Sketcher.Constraint("Diameter", 0, 8.2))
sketch12.addConstraint(Sketcher.Constraint("DistanceY", 0, 3, -1, 1, 114.379501))
pocket3 = doc.addObject("PartDesign::Pocket", "Pocket002")
body.addObject(pocket3)
pocket3.Profile = sketch12
pocket3.Type = "UpToFirst"
pocket3.Reversed = True

# Sketch on XZ plane
sketch13 = doc.addObject("Sketcher::SketchObject", "Sketch012")
body.addObject(sketch13)
sketch13.AttachmentSupport = (doc.XZ_Plane, [""])
sketch13.MapMode = "FlatFace"
sketch13.AttachmentOffset = App.Placement(Vector(0, 0, -3), App.Rotation())
sketch13.addGeometry(Part.LineSegment(Vector(8, -121, 0), Vector(0, -130, 0)), False)
sketch13.addGeometry(Part.LineSegment(Vector(0, -130, 0), Vector(-8, -121, 0)), False)
sketch13.addGeometry(Part.ArcOfCircle(Part.Circle(Vector(0, -114, 0), Vector(0, 0, 1), 10), math.radians(-140), math.radians(-40)), False)
sketch13.addConstraint(Sketcher.Constraint("Coincident", 0, 2, 1, 1))
sketch13.addConstraint(Sketcher.Constraint("Tangent", 1, 2, 2, 1))
sketch13.addConstraint(Sketcher.Constraint("Tangent", 2, 2, 0, 1))
sketch13.addConstraint(Sketcher.Constraint("Symmetric", 1, 2, 2, 2, -2))
sketch13.addConstraint(Sketcher.Constraint("Radius", 2, 10.0))
sketch13.addConstraint(Sketcher.Constraint("Distance", 0, 12.0))
sketch13.addConstraint(Sketcher.Constraint("DistanceY", 0, 2, -1, 1, 130.0))
pocket4 = doc.addObject("PartDesign::Pocket", "Pocket003")
body.addObject(pocket4)
pocket4.Profile = sketch13
pocket4.Type = "UpToFirst"
pocket4.Reversed = True

# Sketch on XY plane
sketch14 = doc.addObject("Sketcher::SketchObject", "Sketch013")
body.addObject(sketch14)
sketch14.AttachmentSupport = (doc.XY_Plane, [""])
sketch14.MapMode = "FlatFace"
sketch14.AttachmentOffset = App.Placement(Vector(0, 0, -88), App.Rotation())
sketch14.addGeometry(Part.Circle(Vector(29, 12, 0), Vector(0, 0, 1), 0.8), False)
sketch14.addGeometry(Part.Circle(Vector(33, 12, 0), Vector(0, 0, 1), 0.8), False)
sketch14.addConstraint(Sketcher.Constraint("Equal", 0, 1))
sketch14.addConstraint(Sketcher.Constraint("Horizontal", 0, 3, 1, 3))
sketch14.addConstraint(Sketcher.Constraint("Diameter", 0, 1.5))
sketch14.addConstraint(Sketcher.Constraint("DistanceX", -1, 1, 0, 3, 29.0))
sketch14.addConstraint(Sketcher.Constraint("DistanceY", -1, 1, 0, 3, 12.0))
sketch14.addConstraint(Sketcher.Constraint("DistanceX", -1, 1, 1, 3, 33.0))
pocket5 = doc.addObject("PartDesign::Pocket", "Pocket004")
body.addObject(pocket5)
pocket5.Profile = sketch14
pocket5.Length = 2
pocket5.Reversed = True

# Sketch on XY plane
sketch15 = doc.addObject("Sketcher::SketchObject", "Sketch014")
body.addObject(sketch15)
sketch15.AttachmentSupport = (doc.XY_Plane, [""])
sketch15.MapMode = "FlatFace"
sketch15.AttachmentOffset = App.Placement(Vector(0, 0, -62), App.Rotation())
sketch15.addGeometry(Part.LineSegment(Vector(35, 21, 0), Vector(45, 21, 0)), False)
sketch15.addGeometry(Part.ArcOfCircle(Part.Circle(Vector(40, 21, 0), Vector(0, 0, 1), 5), math.radians(180), math.radians(360)), False)
sketch15.addConstraint(Sketcher.Constraint("Coincident", 0, 1, 1, 1))
sketch15.addConstraint(Sketcher.Constraint("Coincident", 1, 2, 0, 2))
sketch15.addConstraint(Sketcher.Constraint("Horizontal", 0))
sketch15.addConstraint(Sketcher.Constraint("Horizontal", 1, 3, 0, 1))
sketch15.addConstraint(Sketcher.Constraint("Radius", 1, 5.0))
sketch15.addConstraint(Sketcher.Constraint("DistanceY", -1, 1, 1, 3, 21.0))
sketch15.addConstraint(Sketcher.Constraint("DistanceX", -1, 1, 1, 3, 39.684272))
pocket6 = doc.addObject("PartDesign::Pocket", "Pocket005")
body.addObject(pocket6)
pocket6.Profile = sketch15
pocket6.Length = 2
pocket6.Reversed = True
doc.recompute()

fillet = doc.addObject("PartDesign::Fillet", "Fillet")
body.addObject(fillet)
fillet.Base = (pocket6, edges_at(pocket6, [
    (48, 12, -69.276),
    (-48, 12, -69.276),
    (-50, 10.5, -70),
    (50, 10.5, -70),
]))
fillet.Radius = 8
doc.recompute()

mirrored2 = doc.addObject("PartDesign::Mirrored", "Mirrored001")
body.addObject(mirrored2)
mirrored2.Originals = [pad9, pocket5, pocket6]
mirrored2.MirrorPlane = (doc.YZ_Plane, [""])
body.Tip = mirrored2

doc.recompute()
